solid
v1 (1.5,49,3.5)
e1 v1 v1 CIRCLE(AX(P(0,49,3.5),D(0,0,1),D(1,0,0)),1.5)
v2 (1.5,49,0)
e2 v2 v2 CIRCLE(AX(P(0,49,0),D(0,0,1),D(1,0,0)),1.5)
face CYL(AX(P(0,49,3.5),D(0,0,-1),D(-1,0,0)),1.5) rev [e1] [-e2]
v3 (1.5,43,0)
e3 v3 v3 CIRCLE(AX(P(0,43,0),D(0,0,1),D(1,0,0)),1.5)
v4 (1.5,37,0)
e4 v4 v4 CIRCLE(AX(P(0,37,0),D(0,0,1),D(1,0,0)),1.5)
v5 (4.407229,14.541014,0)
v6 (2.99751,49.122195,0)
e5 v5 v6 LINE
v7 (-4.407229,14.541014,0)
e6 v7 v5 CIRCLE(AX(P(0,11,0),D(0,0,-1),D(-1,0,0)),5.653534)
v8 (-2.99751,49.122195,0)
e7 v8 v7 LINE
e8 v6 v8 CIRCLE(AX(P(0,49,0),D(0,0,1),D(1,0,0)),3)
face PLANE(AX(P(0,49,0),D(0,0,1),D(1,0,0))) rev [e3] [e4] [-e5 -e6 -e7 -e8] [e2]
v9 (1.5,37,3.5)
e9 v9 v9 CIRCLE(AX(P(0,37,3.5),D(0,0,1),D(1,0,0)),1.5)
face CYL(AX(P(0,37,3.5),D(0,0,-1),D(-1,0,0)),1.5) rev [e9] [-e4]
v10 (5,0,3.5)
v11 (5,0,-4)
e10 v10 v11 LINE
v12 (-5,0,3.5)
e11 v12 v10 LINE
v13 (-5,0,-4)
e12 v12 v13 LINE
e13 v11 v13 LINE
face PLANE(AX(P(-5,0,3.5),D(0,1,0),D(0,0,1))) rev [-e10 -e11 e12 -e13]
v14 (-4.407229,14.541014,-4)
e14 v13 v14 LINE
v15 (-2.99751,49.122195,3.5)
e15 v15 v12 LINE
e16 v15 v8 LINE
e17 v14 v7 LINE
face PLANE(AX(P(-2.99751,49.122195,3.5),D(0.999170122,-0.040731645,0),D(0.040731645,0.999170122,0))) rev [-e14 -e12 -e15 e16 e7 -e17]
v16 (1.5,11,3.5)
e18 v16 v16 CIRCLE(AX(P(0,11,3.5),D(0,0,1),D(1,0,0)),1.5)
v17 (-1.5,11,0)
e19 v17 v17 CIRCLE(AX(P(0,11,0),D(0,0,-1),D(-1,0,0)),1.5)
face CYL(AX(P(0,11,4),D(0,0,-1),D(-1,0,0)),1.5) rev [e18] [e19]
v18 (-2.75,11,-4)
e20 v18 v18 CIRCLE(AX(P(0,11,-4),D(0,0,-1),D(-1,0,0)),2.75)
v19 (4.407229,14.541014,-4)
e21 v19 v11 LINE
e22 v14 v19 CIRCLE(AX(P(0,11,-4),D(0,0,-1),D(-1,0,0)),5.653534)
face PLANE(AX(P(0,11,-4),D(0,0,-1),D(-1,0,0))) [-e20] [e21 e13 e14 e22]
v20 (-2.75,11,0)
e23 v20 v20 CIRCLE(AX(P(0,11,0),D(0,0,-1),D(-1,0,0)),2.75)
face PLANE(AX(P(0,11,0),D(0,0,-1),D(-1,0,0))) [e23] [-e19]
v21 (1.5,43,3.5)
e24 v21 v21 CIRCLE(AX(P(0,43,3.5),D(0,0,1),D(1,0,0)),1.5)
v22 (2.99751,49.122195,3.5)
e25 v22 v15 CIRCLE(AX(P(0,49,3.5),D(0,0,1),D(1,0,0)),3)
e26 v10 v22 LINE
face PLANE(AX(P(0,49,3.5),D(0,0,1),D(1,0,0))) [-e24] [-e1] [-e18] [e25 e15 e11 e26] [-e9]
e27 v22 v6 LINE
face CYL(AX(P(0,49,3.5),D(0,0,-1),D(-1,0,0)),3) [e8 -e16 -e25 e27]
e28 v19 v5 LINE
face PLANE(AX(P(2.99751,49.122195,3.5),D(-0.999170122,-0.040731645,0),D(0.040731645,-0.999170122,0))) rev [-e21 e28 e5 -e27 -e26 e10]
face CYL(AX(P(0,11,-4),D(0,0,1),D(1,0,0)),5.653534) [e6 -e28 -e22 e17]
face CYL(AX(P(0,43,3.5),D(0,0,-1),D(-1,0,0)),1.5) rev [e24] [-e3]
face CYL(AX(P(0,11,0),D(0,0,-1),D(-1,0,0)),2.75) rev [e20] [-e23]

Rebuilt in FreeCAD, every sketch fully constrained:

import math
import FreeCAD as App
import Part
import Sketcher
from FreeCAD import Vector
Q = App.Units.Quantity

doc = App.newDocument("Part")
body = doc.addObject("PartDesign::Body", "Body")

# Sketch on XY plane
sketch1 = doc.addObject("Sketcher::SketchObject", "Sketch")
body.addObject(sketch1)
sketch1.AttachmentSupport = (doc.XY_Plane, [""])
sketch1.MapMode = "FlatFace"
sketch1.addGeometry([
    Part.LineSegment(Vector(-5, 0, 0), Vector(5, 0, 0)),  # 0
    Part.LineSegment(Vector(5, 0, 0), Vector(3, 49.1, 0)),  # 1
    Part.ArcOfCircle(Part.Circle(Vector(0, 49, 0), Vector(0, 0, 1), 3), math.radians(2), math.radians(178)),  # 2
    Part.LineSegment(Vector(-3, 49.1, 0), Vector(-5, 0, 0)),  # 3
    Part.Circle(Vector(0, 11, 0), Vector(0, 0, 1), 2.8),  # 4
    Part.Circle(Vector(0, 37, 0), Vector(0, 0, 1), 1.5),  # 5
    Part.Circle(Vector(0, 43, 0), Vector(0, 0, 1), 1.5),  # 6
    Part.Circle(Vector(0, 49, 0), Vector(0, 0, 1), 1.5),  # 7
], False)
sketch1.addConstraint([
    Sketcher.Constraint("Coincident", 0, 2, 1, 1),
    Sketcher.Constraint("Tangent", 1, 2, 2, 1),
    Sketcher.Constraint("Tangent", 2, 2, 3, 1),
    Sketcher.Constraint("Coincident", 3, 2, 0, 1),
    Sketcher.Constraint("Horizontal", 0),
    Sketcher.Constraint("Coincident", 7, 3, 2, 3),
    Sketcher.Constraint("Equal", 5, 6),
    Sketcher.Constraint("Equal", 6, 7),
    Sketcher.Constraint("Symmetric", 0, 2, 3, 2, -1, 1),
    Sketcher.Constraint("PointOnObject", 2, 3, -2),
    Sketcher.Constraint("PointOnObject", 4, 3, -2),
    Sketcher.Constraint("PointOnObject", 5, 3, -2),
    Sketcher.Constraint("PointOnObject", 6, 3, -2),
    Sketcher.Constraint("Diameter", 5, Q("3 mm")),
    Sketcher.Constraint("Radius", 2, Q("3 mm")),
    Sketcher.Constraint("Diameter", 4, Q("5.5 mm")),
    Sketcher.Constraint("DistanceX", 0, 1, 0, 2, Q("10 mm")),
    Sketcher.Constraint("DistanceY", -1, 1, 2, 3, Q("49 mm")),
    Sketcher.Constraint("DistanceY", -1, 1, 4, 3, Q("11 mm")),
    Sketcher.Constraint("DistanceY", -1, 1, 5, 3, Q("37 mm")),
    Sketcher.Constraint("DistanceY", -1, 1, 6, 3, Q("43 mm")),
])
pad1 = doc.addObject("PartDesign::Pad", "Pad")
body.addObject(pad1)
pad1.Profile = sketch1
pad1.Length = 3.5

# Sketch on XY plane
sketch2 = doc.addObject("Sketcher::SketchObject", "Sketch001")
body.addObject(sketch2)
sketch2.AttachmentSupport = (doc.XY_Plane, [""])
sketch2.MapMode = "FlatFace"
sketch2.addGeometry([
    Part.LineSegment(Vector(-5, 0, 0), Vector(-4, 15, 0)),
    Part.ArcOfCircle(Part.Circle(Vector(0, 11, 0), Vector(0, 0, 1), 6), math.radians(39), math.radians(141)),
    Part.LineSegment(Vector(4, 15, 0), Vector(5, 0, 0)),
    Part.LineSegment(Vector(5, 0, 0), Vector(-5, 0, 0)),
], False)
sketch2.addConstraint([
    Sketcher.Constraint("Coincident", 0, 2, 1, 2),
    Sketcher.Constraint("Coincident", 1, 1, 2, 1),
    Sketcher.Constraint("Coincident", 2, 2, 3, 1),
    Sketcher.Constraint("Coincident", 3, 2, 0, 1),
    Sketcher.Constraint("Horizontal", 3),
    Sketcher.Constraint("Symmetric", 2, 2, 3, 2, -1, 1),
    Sketcher.Constraint("Symmetric", 0, 2, 1, 1, -2),
    Sketcher.Constraint("DistanceX", 3, 2, 3, 1, Q("10 mm")),
    Sketcher.Constraint("DistanceY", -1, 1, 1, 3, Q("11 mm")),
    Sketcher.Constraint("Radius", 1, Q("5.653534 mm")),
    Sketcher.Constraint("Distance", 0, Q("14.553091 mm")),
])
pad2 = doc.addObject("PartDesign::Pad", "Pad001")
body.addObject(pad2)
pad2.Profile = sketch2
pad2.Length = 4
pad2.Reversed = True

# Sketch on XY plane
sketch3 = doc.addObject("Sketcher::SketchObject", "Sketch002")
body.addObject(sketch3)
sketch3.AttachmentSupport = (doc.XY_Plane, [""])
sketch3.MapMode = "FlatFace"
sketch3.AttachmentOffset = App.Placement(Vector(0, 0, -1.5), App.Rotation())
sketch3.addGeometry(Part.Circle(Vector(0, 11, 0), Vector(0, 0, 1), 2.8), False)
sketch3.addConstraint([
    Sketcher.Constraint("PointOnObject", 0, 3, -2),
    Sketcher.Constraint("Diameter", 0, Q("5.5 mm")),
    Sketcher.Constraint("DistanceY", -1, 1, 0, 3, Q("11 mm")),
])
pad3 = doc.addObject("PartDesign::Pad", "Pad002")
body.addObject(pad3)
pad3.Profile = sketch3
pad3.Length = 5

# Sketch on XY plane
sketch4 = doc.addObject("Sketcher::SketchObject", "Sketch003")
body.addObject(sketch4)
sketch4.AttachmentSupport = (doc.XY_Plane, [""])
sketch4.MapMode = "FlatFace"
sketch4.AttachmentOffset = App.Placement(Vector(0, 0, -4), App.Rotation())
sketch4.addGeometry(Part.Circle(Vector(0, 11, 0), Vector(0, 0, 1), 2.8), False)
sketch4.addConstraint([
    Sketcher.Constraint("PointOnObject", 0, 3, -2),
    Sketcher.Constraint("Diameter", 0, Q("5.5 mm")),
    Sketcher.Constraint("DistanceY", -1, 1, 0, 3, Q("11 mm")),
])
pocket1 = doc.addObject("PartDesign::Pocket", "Pocket")
body.addObject(pocket1)
pocket1.Profile = sketch4
pocket1.Length = 4
pocket1.Reversed = True

# Sketch on XY plane
sketch5 = doc.addObject("Sketcher::SketchObject", "Sketch004")
body.addObject(sketch5)
sketch5.AttachmentSupport = (doc.XY_Plane, [""])
sketch5.MapMode = "FlatFace"
sketch5.addGeometry(Part.Circle(Vector(0, 11, 0), Vector(0, 0, 1), 1.5), False)
sketch5.addConstraint([
    Sketcher.Constraint("PointOnObject", 0, 3, -2),
    Sketcher.Constraint("Diameter", 0, Q("3 mm")),
    Sketcher.Constraint("DistanceY", -1, 1, 0, 3, Q("11 mm")),
])
pocket2 = doc.addObject("PartDesign::Pocket", "Pocket001")
body.addObject(pocket2)
pocket2.Profile = sketch5
pocket2.Length = 4
pocket2.Reversed = True

doc.recompute()
